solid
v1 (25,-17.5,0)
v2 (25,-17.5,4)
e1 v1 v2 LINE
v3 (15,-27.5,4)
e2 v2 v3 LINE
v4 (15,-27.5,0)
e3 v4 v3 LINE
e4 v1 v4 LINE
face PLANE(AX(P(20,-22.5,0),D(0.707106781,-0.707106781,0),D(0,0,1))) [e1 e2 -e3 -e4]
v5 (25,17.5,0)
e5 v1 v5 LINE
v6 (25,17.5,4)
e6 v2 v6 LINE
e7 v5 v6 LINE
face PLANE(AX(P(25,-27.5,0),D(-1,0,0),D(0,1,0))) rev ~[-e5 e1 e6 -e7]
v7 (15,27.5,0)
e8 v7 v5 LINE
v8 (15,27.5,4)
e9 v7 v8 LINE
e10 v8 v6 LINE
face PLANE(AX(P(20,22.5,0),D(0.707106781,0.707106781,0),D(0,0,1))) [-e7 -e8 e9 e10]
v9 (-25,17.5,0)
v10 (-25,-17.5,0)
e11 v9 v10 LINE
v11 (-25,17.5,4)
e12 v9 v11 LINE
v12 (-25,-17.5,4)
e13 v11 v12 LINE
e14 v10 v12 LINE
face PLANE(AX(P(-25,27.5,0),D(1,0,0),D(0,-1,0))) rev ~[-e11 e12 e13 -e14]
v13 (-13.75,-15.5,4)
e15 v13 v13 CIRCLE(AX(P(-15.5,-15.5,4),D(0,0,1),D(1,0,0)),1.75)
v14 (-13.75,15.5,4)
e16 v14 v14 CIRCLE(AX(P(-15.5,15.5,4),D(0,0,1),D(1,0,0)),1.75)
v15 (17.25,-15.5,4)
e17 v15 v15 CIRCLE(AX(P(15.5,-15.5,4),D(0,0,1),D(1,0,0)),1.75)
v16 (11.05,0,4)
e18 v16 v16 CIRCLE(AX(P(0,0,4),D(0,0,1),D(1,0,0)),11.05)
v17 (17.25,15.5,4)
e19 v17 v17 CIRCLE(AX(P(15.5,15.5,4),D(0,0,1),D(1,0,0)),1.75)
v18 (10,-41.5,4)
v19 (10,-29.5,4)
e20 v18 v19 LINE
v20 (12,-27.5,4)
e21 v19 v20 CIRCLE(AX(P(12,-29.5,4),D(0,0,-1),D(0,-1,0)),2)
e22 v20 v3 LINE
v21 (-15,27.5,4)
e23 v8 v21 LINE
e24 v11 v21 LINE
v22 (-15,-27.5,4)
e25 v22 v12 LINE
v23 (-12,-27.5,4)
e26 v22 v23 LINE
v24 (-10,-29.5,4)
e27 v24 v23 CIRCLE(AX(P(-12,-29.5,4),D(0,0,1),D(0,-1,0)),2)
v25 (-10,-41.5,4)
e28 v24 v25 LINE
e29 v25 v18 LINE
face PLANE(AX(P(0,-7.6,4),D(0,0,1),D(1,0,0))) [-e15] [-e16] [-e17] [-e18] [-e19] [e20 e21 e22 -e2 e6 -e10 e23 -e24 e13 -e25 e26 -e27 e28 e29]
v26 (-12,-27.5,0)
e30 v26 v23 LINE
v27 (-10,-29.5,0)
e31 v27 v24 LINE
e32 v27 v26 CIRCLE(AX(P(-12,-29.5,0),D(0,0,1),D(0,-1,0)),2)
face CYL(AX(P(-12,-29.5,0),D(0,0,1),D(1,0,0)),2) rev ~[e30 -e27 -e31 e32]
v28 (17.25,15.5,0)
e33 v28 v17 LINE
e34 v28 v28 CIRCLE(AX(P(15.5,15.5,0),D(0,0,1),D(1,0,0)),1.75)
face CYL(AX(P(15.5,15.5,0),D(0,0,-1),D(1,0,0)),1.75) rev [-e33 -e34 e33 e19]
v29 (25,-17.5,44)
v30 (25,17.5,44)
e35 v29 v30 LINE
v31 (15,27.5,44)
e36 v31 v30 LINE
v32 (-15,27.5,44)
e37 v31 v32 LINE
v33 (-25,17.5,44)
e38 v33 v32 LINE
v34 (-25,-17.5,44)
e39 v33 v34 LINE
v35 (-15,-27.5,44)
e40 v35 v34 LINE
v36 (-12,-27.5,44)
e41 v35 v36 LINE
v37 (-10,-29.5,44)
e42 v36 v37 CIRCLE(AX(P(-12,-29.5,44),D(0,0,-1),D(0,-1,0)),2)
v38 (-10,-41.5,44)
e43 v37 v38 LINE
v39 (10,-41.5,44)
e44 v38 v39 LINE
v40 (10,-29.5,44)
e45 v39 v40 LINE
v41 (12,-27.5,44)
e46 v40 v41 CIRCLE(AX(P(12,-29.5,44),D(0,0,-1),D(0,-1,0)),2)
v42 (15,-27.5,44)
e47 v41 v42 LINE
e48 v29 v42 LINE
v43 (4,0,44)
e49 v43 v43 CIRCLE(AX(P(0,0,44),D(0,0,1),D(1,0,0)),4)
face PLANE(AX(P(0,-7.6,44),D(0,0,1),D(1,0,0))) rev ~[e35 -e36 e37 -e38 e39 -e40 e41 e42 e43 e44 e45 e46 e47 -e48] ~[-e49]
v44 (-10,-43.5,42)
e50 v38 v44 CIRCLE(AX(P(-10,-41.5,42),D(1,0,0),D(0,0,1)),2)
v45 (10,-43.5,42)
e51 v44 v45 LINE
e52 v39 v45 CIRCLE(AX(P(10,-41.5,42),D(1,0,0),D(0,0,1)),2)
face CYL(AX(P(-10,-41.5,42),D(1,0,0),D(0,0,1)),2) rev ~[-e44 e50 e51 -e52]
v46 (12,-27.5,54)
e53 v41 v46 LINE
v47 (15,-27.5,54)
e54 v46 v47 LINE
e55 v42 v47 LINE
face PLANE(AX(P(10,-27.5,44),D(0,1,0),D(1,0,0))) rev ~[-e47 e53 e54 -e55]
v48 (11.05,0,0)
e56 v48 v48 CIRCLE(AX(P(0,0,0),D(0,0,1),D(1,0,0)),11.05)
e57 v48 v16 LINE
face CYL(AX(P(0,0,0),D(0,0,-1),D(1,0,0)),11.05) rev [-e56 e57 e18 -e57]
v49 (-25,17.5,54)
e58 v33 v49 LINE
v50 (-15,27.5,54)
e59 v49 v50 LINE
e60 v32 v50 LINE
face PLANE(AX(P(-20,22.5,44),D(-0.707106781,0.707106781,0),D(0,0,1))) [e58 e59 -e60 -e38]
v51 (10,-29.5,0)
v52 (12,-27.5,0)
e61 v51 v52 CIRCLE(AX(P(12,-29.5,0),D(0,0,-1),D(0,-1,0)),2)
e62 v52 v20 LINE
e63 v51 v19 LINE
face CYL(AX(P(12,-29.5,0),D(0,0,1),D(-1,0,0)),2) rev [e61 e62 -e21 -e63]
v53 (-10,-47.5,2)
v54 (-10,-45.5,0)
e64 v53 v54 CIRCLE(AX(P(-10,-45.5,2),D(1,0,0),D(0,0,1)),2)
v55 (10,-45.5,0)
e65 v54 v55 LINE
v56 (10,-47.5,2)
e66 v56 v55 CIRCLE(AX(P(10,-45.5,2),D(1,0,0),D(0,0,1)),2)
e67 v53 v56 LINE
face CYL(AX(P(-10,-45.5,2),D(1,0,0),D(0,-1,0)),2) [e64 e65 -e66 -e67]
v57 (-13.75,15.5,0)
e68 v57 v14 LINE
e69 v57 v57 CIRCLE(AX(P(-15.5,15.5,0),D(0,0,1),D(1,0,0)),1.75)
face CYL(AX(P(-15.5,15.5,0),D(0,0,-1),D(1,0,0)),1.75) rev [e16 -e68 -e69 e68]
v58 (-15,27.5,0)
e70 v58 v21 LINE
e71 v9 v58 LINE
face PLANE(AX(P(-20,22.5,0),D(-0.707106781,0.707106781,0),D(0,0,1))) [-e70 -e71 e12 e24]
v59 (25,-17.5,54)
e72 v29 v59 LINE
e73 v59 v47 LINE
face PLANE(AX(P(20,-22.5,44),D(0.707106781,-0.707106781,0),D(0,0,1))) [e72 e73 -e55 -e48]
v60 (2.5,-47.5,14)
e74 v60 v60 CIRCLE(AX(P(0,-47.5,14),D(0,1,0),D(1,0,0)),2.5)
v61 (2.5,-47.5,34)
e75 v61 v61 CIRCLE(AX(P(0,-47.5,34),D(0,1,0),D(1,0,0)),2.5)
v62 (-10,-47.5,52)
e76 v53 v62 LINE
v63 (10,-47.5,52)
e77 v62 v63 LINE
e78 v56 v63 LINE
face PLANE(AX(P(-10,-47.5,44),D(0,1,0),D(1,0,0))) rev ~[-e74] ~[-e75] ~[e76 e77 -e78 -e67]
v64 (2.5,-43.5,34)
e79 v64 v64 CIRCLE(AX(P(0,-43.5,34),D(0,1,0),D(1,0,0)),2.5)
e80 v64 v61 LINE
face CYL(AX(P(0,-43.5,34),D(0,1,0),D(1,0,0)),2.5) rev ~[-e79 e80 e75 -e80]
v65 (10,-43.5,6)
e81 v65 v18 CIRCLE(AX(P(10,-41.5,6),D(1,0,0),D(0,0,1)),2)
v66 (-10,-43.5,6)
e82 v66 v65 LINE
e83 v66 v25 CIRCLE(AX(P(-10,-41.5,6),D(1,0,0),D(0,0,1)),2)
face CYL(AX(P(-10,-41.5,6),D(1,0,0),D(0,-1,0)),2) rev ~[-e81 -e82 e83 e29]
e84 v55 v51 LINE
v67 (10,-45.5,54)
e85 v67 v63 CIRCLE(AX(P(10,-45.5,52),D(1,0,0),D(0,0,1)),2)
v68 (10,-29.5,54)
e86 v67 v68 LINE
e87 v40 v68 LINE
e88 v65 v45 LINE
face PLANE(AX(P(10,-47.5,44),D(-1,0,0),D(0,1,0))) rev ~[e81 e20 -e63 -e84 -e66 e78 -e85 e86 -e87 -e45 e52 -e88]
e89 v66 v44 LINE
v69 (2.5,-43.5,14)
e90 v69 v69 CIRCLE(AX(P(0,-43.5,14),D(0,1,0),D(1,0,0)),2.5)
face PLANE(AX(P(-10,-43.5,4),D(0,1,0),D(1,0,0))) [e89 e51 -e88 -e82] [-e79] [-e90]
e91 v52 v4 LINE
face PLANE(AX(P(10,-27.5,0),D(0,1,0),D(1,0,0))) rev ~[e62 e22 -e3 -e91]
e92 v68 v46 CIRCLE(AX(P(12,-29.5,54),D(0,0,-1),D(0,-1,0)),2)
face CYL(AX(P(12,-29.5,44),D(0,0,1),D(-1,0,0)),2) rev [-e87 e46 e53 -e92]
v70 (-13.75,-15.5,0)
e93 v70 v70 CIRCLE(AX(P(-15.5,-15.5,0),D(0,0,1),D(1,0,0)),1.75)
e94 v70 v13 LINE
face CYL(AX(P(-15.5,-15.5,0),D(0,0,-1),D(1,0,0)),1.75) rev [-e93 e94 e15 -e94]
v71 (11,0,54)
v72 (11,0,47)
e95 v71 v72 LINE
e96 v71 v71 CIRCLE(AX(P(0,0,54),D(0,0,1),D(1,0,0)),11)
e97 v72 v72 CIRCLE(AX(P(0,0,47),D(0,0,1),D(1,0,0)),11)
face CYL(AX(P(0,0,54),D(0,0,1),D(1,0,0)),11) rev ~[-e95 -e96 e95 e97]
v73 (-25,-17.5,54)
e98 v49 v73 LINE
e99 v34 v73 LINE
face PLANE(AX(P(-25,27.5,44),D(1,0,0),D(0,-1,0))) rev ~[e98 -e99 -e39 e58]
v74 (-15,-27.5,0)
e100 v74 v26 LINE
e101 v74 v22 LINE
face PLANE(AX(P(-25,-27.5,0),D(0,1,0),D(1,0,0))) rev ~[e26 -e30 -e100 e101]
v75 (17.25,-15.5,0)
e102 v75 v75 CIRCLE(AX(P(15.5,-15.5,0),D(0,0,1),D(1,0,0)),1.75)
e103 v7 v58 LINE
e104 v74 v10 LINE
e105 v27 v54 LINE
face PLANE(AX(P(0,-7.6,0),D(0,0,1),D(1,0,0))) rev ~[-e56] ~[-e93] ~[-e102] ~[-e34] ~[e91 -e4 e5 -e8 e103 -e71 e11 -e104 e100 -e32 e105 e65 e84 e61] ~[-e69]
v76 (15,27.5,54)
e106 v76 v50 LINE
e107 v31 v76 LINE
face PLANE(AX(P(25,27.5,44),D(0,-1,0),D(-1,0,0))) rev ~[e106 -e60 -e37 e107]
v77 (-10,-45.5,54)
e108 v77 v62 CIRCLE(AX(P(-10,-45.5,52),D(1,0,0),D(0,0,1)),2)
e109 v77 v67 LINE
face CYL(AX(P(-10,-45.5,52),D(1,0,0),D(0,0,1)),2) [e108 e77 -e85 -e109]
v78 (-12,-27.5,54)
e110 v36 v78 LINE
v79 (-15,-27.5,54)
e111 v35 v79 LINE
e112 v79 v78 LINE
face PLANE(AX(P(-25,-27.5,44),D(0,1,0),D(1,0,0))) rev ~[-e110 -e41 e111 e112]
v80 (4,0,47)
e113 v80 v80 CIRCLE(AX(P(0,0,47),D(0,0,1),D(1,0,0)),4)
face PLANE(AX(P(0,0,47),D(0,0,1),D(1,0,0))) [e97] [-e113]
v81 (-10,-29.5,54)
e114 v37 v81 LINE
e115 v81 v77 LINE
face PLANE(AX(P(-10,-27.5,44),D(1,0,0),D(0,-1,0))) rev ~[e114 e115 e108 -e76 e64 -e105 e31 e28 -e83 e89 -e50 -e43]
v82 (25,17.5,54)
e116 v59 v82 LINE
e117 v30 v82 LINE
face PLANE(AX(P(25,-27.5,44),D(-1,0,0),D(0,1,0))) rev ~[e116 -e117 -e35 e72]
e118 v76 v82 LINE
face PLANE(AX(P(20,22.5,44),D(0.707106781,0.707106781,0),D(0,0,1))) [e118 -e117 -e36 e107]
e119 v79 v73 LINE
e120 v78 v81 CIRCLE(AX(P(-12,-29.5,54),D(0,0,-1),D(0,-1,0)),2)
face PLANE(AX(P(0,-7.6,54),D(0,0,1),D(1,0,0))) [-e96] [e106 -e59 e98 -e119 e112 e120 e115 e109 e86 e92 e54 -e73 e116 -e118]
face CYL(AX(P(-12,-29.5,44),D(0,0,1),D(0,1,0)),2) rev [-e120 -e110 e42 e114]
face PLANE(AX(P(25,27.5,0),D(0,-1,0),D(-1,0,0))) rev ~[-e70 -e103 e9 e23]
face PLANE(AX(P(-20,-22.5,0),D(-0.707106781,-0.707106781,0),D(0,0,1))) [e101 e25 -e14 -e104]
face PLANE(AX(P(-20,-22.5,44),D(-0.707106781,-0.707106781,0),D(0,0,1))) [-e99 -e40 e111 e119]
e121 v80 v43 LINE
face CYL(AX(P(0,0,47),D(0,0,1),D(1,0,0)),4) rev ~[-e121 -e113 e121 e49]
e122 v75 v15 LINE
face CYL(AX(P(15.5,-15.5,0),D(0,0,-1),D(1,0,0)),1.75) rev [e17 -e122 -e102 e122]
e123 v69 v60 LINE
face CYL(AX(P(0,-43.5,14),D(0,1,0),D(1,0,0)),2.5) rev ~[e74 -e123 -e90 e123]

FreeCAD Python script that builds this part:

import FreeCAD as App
import Part
import Sketcher


def edges_at(feature, points):
    """Names of the edges that pass closest to the given points."""
    edges = feature.Shape.Edges
    near = lambda p: min(range(len(edges)), key=lambda i: edges[i].distToShape(Part.Vertex(*p))[0])
    return sorted({f"Edge{near(p) + 1}" for p in points})

doc = App.newDocument("Part")
body = doc.addObject("PartDesign::Body", "Body")

sketch1 = body.newObject("Sketcher::SketchObject", "Sketch")
sketch1.AttachmentSupport = (doc.getObject("XY_Plane"), [""])
sketch1.MapMode = "FlatFace"
sketch1.addGeometry([
    Part.LineSegment(App.Vector(-25, -27.5, 0), App.Vector(-10, -27.5, 0)),
    Part.LineSegment(App.Vector(-10, -27.5, 0), App.Vector(-10, -47.5, 0)),
    Part.LineSegment(App.Vector(-10, -47.5, 0), App.Vector(10, -47.5, 0)),
    Part.LineSegment(App.Vector(10, -47.5, 0), App.Vector(10, -27.5, 0)),
    Part.LineSegment(App.Vector(10, -27.5, 0), App.Vector(25, -27.5, 0)),
    Part.LineSegment(App.Vector(25, -27.5, 0), App.Vector(25, 27.5, 0)),
    Part.LineSegment(App.Vector(25, 27.5, 0), App.Vector(-25, 27.5, 0)),
    Part.LineSegment(App.Vector(-25, 27.5, 0), App.Vector(-25, -27.5, 0)),
    Part.Circle(App.Vector(-15.5, -15.5, 0), App.Vector(0, 0, 1), 1.8),
    Part.Circle(App.Vector(15.5, -15.5, 0), App.Vector(0, 0, 1), 1.8),
    Part.Circle(App.Vector(-15.5, 15.5, 0), App.Vector(0, 0, 1), 1.8),
    Part.Circle(App.Vector(0, 0, 0), App.Vector(0, 0, 1), 11.1),
    Part.Circle(App.Vector(15.5, 15.5, 0), App.Vector(0, 0, 1), 1.8),
], False)
sketch1.addConstraint([
    Sketcher.Constraint("Coincident", 0, 2, 1, 1),
    Sketcher.Constraint("Coincident", 1, 2, 2, 1),
    Sketcher.Constraint("Coincident", 2, 2, 3, 1),
    Sketcher.Constraint("Coincident", 3, 2, 4, 1),
    Sketcher.Constraint("Coincident", 4, 2, 5, 1),
    Sketcher.Constraint("Coincident", 5, 2, 6, 1),
    Sketcher.Constraint("Coincident", 6, 2, 7, 1),
    Sketcher.Constraint("Coincident", 7, 2, 0, 1),
    Sketcher.Constraint("Horizontal", 0),
    Sketcher.Constraint("Vertical", 1),
    Sketcher.Constraint("Horizontal", 2),
    Sketcher.Constraint("Vertical", 3),
    Sketcher.Constraint("Horizontal", 4),
    Sketcher.Constraint("Vertical", 5),
    Sketcher.Constraint("Horizontal", 6),
    Sketcher.Constraint("Vertical", 7),
    Sketcher.Constraint("Coincident", 11, 3, -1, 1),
    Sketcher.Constraint("Equal", 8, 9),
    Sketcher.Constraint("Equal", 9, 10),
    Sketcher.Constraint("Equal", 10, 12),
    Sketcher.Constraint("Symmetric", 9, 3, 10, 3, -1, 1),
    Sketcher.Constraint("Symmetric", 8, 3, 12, 3, -1, 1),
    Sketcher.Constraint("Symmetric", 4, 2, 6, 2, -1, 1),
    Sketcher.Constraint("Symmetric", 8, 3, 9, 3, -2),
    Sketcher.Constraint("Symmetric", 0, 2, 3, 2, -2),
    Sketcher.Constraint("Equal", 2, 1),
    Sketcher.Constraint("Diameter", 8, 3.5),
    Sketcher.Constraint("Diameter", 11, 22.1),
    Sketcher.Constraint("DistanceX", 0, 1, 0, 2, 15.0),
    Sketcher.Constraint("DistanceX", 2, 1, 2, 2, 20.0),
    Sketcher.Constraint("DistanceY", 5, 1, 5, 2, 55.0),
    Sketcher.Constraint("DistanceX", 8, 3, 9, 3, 31.0),
    Sketcher.Constraint("DistanceY", 8, 3, 10, 3, 31.0),
])
pad1 = body.newObject("PartDesign::Pad", "Pad")
pad1.Profile = sketch1
pad1.Length = 4

sketch2 = body.newObject("Sketcher::SketchObject", "Sketch001")
sketch2.AttachmentSupport = (doc.getObject("XY_Plane"), [""])
sketch2.MapMode = "FlatFace"
sketch2.AttachmentOffset = App.Placement(App.Vector(0, 0, 4), App.Rotation())
sketch2.addGeometry([
    Part.LineSegment(App.Vector(-10, -43.5, 0), App.Vector(-10, -47.5, 0)),
    Part.LineSegment(App.Vector(-10, -47.5, 0), App.Vector(10, -47.5, 0)),
    Part.LineSegment(App.Vector(10, -47.5, 0), App.Vector(10, -43.5, 0)),
    Part.LineSegment(App.Vector(10, -43.5, 0), App.Vector(-10, -43.5, 0)),
], False)
sketch2.addConstraint([
    Sketcher.Constraint("Coincident", 0, 2, 1, 1),
    Sketcher.Constraint("Coincident", 1, 2, 2, 1),
    Sketcher.Constraint("Coincident", 2, 2, 3, 1),
    Sketcher.Constraint("Coincident", 3, 2, 0, 1),
    Sketcher.Constraint("Vertical", 0),
    Sketcher.Constraint("Horizontal", 1),
    Sketcher.Constraint("Vertical", 2),
    Sketcher.Constraint("Horizontal", 3),
    Sketcher.Constraint("DistanceX", 1, 1, 1, 2, 20.0),
    Sketcher.Constraint("DistanceY", 0, 2, 0, 1, 4.0),
    Sketcher.Constraint("DistanceX", 0, 2, -1, 1, 10.0),
    Sketcher.Constraint("DistanceY", 0, 2, -1, 1, 47.5),
])
pad2 = body.newObject("PartDesign::Pad", "Pad001")
pad2.Profile = sketch2
pad2.Length = 40

sketch3 = body.newObject("Sketcher::SketchObject", "Sketch002")
sketch3.AttachmentSupport = (doc.getObject("XY_Plane"), [""])
sketch3.MapMode = "FlatFace"
sketch3.AttachmentOffset = App.Placement(App.Vector(0, 0, 44), App.Rotation())
sketch3.addGeometry([
    Part.LineSegment(App.Vector(-25, -28, 0), App.Vector(-10, -28, 0)),
    Part.LineSegment(App.Vector(-10, -28, 0), App.Vector(-10, -48, 0)),
    Part.LineSegment(App.Vector(-10, -48, 0), App.Vector(10, -48, 0)),
    Part.LineSegment(App.Vector(10, -48, 0), App.Vector(10, -28, 0)),
    Part.LineSegment(App.Vector(10, -28, 0), App.Vector(25, -28, 0)),
    Part.LineSegment(App.Vector(25, -28, 0), App.Vector(25, 28, 0)),
    Part.LineSegment(App.Vector(25, 28, 0), App.Vector(-25, 28, 0)),
    Part.LineSegment(App.Vector(-25, 28, 0), App.Vector(-25, -28, 0)),
], False)
sketch3.addConstraint([
    Sketcher.Constraint("Coincident", 0, 2, 1, 1),
    Sketcher.Constraint("Coincident", 1, 2, 2, 1),
    Sketcher.Constraint("Coincident", 2, 2, 3, 1),
    Sketcher.Constraint("Coincident", 3, 2, 4, 1),
    Sketcher.Constraint("Coincident", 4, 2, 5, 1),
    Sketcher.Constraint("Coincident", 5, 2, 6, 1),
    Sketcher.Constraint("Coincident", 6, 2, 7, 1),
    Sketcher.Constraint("Coincident", 7, 2, 0, 1),
    Sketcher.Constraint("Horizontal", 0),
    Sketcher.Constraint("Vertical", 1),
    Sketcher.Constraint("Horizontal", 2),
    Sketcher.Constraint("Vertical", 3),
    Sketcher.Constraint("Horizontal", 4),
    Sketcher.Constraint("Vertical", 5),
    Sketcher.Constraint("Horizontal", 6),
    Sketcher.Constraint("Vertical", 7),
    Sketcher.Constraint("Symmetric", 4, 2, 6, 2, -1, 1),
    Sketcher.Constraint("Symmetric", 0, 2, 3, 2, -2),
    Sketcher.Constraint("Equal", 2, 1),
    Sketcher.Constraint("DistanceX", 0, 1, 0, 2, 15.0),
    Sketcher.Constraint("DistanceX", 2, 1, 2, 2, 20.0),
    Sketcher.Constraint("DistanceY", 5, 1, 5, 2, 55.0),
])
pad3 = body.newObject("PartDesign::Pad", "Pad002")
pad3.Profile = sketch3
pad3.Length = 10

sketch4 = body.newObject("Sketcher::SketchObject", "Sketch003")
sketch4.AttachmentSupport = (doc.getObject("XY_Plane"), [""])
sketch4.MapMode = "FlatFace"
sketch4.AttachmentOffset = App.Placement(App.Vector(0, 0, 54), App.Rotation())
sketch4.addGeometry(Part.Circle(App.Vector(0, 0, 0), App.Vector(0, 0, 1), 11), False)
sketch4.addConstraint([
    Sketcher.Constraint("Coincident", 0, 3, -1, 1),
    Sketcher.Constraint("Diameter", 0, 22.0),
])
pocket1 = body.newObject("PartDesign::Pocket", "Pocket")
pocket1.Profile = sketch4
pocket1.Length = 7

sketch5 = body.newObject("Sketcher::SketchObject", "Sketch004")
sketch5.AttachmentSupport = (doc.getObject("XY_Plane"), [""])
sketch5.MapMode = "FlatFace"
sketch5.AttachmentOffset = App.Placement(App.Vector(0, 0, 47), App.Rotation())
sketch5.addGeometry(Part.Circle(App.Vector(0, 0, 0), App.Vector(0, 0, 1), 4), False)
sketch5.addConstraint([
    Sketcher.Constraint("Coincident", 0, 3, -1, 1),
    Sketcher.Constraint("Diameter", 0, 8.0),
])
pocket2 = body.newObject("PartDesign::Pocket", "Pocket001")
pocket2.Profile = sketch5
pocket2.Length = 7
doc.recompute()

chamfer = body.newObject("PartDesign::Chamfer", "Chamfer")
chamfer.Base = (pocket2, edges_at(pocket2, [
    (25, -27.5, 2),
    (-25, -27.5, 2),
    (-25, 27.5, 2),
    (25, 27.5, 2),
    (25, -27.5, 49),
    (25, 27.5, 49),
    (-25, 27.5, 49),
    (-25, -27.5, 49),
]))
chamfer.Size = 10
doc.recompute()

fillet = body.newObject("PartDesign::Fillet", "Fillet")
fillet.Base = (chamfer, edges_at(chamfer, [
    (10, -27.5, 2),
    (-10, -27.5, 2),
    (0, -43.5, 4),
    (0, -43.5, 44),
    (-10, -27.5, 49),
    (10, -27.5, 49),
    (0, -47.5, 54),
    (0, -47.5, 0),
]))
fillet.Radius = 2

sketch6 = body.newObject("Sketcher::SketchObject", "Sketch005")
sketch6.AttachmentSupport = (doc.getObject("XZ_Plane"), [""])
sketch6.MapMode = "FlatFace"
sketch6.AttachmentOffset = App.Placement(App.Vector(0, 0, 43.5), App.Rotation())
sketch6.addGeometry([
    Part.Circle(App.Vector(0, 14, 0), App.Vector(0, 0, 1), 2.5),
    Part.Circle(App.Vector(0, 34, 0), App.Vector(0, 0, 1), 2.5),
], False)
sketch6.addConstraint([
    Sketcher.Constraint("Equal", 0, 1),
    Sketcher.Constraint("PointOnObject", 0, 3, -2),
    Sketcher.Constraint("PointOnObject", 1, 3, -2),
    Sketcher.Constraint("Diameter", 0, 5.0),
    Sketcher.Constraint("DistanceY", -1, 1, 0, 3, 14.0),
    Sketcher.Constraint("DistanceY", -1, 1, 1, 3, 34.0),
])
pocket3 = body.newObject("PartDesign::Pocket", "Pocket002")
pocket3.Profile = sketch6
pocket3.Length = 10
pocket3.Reversed = True

doc.recompute()
